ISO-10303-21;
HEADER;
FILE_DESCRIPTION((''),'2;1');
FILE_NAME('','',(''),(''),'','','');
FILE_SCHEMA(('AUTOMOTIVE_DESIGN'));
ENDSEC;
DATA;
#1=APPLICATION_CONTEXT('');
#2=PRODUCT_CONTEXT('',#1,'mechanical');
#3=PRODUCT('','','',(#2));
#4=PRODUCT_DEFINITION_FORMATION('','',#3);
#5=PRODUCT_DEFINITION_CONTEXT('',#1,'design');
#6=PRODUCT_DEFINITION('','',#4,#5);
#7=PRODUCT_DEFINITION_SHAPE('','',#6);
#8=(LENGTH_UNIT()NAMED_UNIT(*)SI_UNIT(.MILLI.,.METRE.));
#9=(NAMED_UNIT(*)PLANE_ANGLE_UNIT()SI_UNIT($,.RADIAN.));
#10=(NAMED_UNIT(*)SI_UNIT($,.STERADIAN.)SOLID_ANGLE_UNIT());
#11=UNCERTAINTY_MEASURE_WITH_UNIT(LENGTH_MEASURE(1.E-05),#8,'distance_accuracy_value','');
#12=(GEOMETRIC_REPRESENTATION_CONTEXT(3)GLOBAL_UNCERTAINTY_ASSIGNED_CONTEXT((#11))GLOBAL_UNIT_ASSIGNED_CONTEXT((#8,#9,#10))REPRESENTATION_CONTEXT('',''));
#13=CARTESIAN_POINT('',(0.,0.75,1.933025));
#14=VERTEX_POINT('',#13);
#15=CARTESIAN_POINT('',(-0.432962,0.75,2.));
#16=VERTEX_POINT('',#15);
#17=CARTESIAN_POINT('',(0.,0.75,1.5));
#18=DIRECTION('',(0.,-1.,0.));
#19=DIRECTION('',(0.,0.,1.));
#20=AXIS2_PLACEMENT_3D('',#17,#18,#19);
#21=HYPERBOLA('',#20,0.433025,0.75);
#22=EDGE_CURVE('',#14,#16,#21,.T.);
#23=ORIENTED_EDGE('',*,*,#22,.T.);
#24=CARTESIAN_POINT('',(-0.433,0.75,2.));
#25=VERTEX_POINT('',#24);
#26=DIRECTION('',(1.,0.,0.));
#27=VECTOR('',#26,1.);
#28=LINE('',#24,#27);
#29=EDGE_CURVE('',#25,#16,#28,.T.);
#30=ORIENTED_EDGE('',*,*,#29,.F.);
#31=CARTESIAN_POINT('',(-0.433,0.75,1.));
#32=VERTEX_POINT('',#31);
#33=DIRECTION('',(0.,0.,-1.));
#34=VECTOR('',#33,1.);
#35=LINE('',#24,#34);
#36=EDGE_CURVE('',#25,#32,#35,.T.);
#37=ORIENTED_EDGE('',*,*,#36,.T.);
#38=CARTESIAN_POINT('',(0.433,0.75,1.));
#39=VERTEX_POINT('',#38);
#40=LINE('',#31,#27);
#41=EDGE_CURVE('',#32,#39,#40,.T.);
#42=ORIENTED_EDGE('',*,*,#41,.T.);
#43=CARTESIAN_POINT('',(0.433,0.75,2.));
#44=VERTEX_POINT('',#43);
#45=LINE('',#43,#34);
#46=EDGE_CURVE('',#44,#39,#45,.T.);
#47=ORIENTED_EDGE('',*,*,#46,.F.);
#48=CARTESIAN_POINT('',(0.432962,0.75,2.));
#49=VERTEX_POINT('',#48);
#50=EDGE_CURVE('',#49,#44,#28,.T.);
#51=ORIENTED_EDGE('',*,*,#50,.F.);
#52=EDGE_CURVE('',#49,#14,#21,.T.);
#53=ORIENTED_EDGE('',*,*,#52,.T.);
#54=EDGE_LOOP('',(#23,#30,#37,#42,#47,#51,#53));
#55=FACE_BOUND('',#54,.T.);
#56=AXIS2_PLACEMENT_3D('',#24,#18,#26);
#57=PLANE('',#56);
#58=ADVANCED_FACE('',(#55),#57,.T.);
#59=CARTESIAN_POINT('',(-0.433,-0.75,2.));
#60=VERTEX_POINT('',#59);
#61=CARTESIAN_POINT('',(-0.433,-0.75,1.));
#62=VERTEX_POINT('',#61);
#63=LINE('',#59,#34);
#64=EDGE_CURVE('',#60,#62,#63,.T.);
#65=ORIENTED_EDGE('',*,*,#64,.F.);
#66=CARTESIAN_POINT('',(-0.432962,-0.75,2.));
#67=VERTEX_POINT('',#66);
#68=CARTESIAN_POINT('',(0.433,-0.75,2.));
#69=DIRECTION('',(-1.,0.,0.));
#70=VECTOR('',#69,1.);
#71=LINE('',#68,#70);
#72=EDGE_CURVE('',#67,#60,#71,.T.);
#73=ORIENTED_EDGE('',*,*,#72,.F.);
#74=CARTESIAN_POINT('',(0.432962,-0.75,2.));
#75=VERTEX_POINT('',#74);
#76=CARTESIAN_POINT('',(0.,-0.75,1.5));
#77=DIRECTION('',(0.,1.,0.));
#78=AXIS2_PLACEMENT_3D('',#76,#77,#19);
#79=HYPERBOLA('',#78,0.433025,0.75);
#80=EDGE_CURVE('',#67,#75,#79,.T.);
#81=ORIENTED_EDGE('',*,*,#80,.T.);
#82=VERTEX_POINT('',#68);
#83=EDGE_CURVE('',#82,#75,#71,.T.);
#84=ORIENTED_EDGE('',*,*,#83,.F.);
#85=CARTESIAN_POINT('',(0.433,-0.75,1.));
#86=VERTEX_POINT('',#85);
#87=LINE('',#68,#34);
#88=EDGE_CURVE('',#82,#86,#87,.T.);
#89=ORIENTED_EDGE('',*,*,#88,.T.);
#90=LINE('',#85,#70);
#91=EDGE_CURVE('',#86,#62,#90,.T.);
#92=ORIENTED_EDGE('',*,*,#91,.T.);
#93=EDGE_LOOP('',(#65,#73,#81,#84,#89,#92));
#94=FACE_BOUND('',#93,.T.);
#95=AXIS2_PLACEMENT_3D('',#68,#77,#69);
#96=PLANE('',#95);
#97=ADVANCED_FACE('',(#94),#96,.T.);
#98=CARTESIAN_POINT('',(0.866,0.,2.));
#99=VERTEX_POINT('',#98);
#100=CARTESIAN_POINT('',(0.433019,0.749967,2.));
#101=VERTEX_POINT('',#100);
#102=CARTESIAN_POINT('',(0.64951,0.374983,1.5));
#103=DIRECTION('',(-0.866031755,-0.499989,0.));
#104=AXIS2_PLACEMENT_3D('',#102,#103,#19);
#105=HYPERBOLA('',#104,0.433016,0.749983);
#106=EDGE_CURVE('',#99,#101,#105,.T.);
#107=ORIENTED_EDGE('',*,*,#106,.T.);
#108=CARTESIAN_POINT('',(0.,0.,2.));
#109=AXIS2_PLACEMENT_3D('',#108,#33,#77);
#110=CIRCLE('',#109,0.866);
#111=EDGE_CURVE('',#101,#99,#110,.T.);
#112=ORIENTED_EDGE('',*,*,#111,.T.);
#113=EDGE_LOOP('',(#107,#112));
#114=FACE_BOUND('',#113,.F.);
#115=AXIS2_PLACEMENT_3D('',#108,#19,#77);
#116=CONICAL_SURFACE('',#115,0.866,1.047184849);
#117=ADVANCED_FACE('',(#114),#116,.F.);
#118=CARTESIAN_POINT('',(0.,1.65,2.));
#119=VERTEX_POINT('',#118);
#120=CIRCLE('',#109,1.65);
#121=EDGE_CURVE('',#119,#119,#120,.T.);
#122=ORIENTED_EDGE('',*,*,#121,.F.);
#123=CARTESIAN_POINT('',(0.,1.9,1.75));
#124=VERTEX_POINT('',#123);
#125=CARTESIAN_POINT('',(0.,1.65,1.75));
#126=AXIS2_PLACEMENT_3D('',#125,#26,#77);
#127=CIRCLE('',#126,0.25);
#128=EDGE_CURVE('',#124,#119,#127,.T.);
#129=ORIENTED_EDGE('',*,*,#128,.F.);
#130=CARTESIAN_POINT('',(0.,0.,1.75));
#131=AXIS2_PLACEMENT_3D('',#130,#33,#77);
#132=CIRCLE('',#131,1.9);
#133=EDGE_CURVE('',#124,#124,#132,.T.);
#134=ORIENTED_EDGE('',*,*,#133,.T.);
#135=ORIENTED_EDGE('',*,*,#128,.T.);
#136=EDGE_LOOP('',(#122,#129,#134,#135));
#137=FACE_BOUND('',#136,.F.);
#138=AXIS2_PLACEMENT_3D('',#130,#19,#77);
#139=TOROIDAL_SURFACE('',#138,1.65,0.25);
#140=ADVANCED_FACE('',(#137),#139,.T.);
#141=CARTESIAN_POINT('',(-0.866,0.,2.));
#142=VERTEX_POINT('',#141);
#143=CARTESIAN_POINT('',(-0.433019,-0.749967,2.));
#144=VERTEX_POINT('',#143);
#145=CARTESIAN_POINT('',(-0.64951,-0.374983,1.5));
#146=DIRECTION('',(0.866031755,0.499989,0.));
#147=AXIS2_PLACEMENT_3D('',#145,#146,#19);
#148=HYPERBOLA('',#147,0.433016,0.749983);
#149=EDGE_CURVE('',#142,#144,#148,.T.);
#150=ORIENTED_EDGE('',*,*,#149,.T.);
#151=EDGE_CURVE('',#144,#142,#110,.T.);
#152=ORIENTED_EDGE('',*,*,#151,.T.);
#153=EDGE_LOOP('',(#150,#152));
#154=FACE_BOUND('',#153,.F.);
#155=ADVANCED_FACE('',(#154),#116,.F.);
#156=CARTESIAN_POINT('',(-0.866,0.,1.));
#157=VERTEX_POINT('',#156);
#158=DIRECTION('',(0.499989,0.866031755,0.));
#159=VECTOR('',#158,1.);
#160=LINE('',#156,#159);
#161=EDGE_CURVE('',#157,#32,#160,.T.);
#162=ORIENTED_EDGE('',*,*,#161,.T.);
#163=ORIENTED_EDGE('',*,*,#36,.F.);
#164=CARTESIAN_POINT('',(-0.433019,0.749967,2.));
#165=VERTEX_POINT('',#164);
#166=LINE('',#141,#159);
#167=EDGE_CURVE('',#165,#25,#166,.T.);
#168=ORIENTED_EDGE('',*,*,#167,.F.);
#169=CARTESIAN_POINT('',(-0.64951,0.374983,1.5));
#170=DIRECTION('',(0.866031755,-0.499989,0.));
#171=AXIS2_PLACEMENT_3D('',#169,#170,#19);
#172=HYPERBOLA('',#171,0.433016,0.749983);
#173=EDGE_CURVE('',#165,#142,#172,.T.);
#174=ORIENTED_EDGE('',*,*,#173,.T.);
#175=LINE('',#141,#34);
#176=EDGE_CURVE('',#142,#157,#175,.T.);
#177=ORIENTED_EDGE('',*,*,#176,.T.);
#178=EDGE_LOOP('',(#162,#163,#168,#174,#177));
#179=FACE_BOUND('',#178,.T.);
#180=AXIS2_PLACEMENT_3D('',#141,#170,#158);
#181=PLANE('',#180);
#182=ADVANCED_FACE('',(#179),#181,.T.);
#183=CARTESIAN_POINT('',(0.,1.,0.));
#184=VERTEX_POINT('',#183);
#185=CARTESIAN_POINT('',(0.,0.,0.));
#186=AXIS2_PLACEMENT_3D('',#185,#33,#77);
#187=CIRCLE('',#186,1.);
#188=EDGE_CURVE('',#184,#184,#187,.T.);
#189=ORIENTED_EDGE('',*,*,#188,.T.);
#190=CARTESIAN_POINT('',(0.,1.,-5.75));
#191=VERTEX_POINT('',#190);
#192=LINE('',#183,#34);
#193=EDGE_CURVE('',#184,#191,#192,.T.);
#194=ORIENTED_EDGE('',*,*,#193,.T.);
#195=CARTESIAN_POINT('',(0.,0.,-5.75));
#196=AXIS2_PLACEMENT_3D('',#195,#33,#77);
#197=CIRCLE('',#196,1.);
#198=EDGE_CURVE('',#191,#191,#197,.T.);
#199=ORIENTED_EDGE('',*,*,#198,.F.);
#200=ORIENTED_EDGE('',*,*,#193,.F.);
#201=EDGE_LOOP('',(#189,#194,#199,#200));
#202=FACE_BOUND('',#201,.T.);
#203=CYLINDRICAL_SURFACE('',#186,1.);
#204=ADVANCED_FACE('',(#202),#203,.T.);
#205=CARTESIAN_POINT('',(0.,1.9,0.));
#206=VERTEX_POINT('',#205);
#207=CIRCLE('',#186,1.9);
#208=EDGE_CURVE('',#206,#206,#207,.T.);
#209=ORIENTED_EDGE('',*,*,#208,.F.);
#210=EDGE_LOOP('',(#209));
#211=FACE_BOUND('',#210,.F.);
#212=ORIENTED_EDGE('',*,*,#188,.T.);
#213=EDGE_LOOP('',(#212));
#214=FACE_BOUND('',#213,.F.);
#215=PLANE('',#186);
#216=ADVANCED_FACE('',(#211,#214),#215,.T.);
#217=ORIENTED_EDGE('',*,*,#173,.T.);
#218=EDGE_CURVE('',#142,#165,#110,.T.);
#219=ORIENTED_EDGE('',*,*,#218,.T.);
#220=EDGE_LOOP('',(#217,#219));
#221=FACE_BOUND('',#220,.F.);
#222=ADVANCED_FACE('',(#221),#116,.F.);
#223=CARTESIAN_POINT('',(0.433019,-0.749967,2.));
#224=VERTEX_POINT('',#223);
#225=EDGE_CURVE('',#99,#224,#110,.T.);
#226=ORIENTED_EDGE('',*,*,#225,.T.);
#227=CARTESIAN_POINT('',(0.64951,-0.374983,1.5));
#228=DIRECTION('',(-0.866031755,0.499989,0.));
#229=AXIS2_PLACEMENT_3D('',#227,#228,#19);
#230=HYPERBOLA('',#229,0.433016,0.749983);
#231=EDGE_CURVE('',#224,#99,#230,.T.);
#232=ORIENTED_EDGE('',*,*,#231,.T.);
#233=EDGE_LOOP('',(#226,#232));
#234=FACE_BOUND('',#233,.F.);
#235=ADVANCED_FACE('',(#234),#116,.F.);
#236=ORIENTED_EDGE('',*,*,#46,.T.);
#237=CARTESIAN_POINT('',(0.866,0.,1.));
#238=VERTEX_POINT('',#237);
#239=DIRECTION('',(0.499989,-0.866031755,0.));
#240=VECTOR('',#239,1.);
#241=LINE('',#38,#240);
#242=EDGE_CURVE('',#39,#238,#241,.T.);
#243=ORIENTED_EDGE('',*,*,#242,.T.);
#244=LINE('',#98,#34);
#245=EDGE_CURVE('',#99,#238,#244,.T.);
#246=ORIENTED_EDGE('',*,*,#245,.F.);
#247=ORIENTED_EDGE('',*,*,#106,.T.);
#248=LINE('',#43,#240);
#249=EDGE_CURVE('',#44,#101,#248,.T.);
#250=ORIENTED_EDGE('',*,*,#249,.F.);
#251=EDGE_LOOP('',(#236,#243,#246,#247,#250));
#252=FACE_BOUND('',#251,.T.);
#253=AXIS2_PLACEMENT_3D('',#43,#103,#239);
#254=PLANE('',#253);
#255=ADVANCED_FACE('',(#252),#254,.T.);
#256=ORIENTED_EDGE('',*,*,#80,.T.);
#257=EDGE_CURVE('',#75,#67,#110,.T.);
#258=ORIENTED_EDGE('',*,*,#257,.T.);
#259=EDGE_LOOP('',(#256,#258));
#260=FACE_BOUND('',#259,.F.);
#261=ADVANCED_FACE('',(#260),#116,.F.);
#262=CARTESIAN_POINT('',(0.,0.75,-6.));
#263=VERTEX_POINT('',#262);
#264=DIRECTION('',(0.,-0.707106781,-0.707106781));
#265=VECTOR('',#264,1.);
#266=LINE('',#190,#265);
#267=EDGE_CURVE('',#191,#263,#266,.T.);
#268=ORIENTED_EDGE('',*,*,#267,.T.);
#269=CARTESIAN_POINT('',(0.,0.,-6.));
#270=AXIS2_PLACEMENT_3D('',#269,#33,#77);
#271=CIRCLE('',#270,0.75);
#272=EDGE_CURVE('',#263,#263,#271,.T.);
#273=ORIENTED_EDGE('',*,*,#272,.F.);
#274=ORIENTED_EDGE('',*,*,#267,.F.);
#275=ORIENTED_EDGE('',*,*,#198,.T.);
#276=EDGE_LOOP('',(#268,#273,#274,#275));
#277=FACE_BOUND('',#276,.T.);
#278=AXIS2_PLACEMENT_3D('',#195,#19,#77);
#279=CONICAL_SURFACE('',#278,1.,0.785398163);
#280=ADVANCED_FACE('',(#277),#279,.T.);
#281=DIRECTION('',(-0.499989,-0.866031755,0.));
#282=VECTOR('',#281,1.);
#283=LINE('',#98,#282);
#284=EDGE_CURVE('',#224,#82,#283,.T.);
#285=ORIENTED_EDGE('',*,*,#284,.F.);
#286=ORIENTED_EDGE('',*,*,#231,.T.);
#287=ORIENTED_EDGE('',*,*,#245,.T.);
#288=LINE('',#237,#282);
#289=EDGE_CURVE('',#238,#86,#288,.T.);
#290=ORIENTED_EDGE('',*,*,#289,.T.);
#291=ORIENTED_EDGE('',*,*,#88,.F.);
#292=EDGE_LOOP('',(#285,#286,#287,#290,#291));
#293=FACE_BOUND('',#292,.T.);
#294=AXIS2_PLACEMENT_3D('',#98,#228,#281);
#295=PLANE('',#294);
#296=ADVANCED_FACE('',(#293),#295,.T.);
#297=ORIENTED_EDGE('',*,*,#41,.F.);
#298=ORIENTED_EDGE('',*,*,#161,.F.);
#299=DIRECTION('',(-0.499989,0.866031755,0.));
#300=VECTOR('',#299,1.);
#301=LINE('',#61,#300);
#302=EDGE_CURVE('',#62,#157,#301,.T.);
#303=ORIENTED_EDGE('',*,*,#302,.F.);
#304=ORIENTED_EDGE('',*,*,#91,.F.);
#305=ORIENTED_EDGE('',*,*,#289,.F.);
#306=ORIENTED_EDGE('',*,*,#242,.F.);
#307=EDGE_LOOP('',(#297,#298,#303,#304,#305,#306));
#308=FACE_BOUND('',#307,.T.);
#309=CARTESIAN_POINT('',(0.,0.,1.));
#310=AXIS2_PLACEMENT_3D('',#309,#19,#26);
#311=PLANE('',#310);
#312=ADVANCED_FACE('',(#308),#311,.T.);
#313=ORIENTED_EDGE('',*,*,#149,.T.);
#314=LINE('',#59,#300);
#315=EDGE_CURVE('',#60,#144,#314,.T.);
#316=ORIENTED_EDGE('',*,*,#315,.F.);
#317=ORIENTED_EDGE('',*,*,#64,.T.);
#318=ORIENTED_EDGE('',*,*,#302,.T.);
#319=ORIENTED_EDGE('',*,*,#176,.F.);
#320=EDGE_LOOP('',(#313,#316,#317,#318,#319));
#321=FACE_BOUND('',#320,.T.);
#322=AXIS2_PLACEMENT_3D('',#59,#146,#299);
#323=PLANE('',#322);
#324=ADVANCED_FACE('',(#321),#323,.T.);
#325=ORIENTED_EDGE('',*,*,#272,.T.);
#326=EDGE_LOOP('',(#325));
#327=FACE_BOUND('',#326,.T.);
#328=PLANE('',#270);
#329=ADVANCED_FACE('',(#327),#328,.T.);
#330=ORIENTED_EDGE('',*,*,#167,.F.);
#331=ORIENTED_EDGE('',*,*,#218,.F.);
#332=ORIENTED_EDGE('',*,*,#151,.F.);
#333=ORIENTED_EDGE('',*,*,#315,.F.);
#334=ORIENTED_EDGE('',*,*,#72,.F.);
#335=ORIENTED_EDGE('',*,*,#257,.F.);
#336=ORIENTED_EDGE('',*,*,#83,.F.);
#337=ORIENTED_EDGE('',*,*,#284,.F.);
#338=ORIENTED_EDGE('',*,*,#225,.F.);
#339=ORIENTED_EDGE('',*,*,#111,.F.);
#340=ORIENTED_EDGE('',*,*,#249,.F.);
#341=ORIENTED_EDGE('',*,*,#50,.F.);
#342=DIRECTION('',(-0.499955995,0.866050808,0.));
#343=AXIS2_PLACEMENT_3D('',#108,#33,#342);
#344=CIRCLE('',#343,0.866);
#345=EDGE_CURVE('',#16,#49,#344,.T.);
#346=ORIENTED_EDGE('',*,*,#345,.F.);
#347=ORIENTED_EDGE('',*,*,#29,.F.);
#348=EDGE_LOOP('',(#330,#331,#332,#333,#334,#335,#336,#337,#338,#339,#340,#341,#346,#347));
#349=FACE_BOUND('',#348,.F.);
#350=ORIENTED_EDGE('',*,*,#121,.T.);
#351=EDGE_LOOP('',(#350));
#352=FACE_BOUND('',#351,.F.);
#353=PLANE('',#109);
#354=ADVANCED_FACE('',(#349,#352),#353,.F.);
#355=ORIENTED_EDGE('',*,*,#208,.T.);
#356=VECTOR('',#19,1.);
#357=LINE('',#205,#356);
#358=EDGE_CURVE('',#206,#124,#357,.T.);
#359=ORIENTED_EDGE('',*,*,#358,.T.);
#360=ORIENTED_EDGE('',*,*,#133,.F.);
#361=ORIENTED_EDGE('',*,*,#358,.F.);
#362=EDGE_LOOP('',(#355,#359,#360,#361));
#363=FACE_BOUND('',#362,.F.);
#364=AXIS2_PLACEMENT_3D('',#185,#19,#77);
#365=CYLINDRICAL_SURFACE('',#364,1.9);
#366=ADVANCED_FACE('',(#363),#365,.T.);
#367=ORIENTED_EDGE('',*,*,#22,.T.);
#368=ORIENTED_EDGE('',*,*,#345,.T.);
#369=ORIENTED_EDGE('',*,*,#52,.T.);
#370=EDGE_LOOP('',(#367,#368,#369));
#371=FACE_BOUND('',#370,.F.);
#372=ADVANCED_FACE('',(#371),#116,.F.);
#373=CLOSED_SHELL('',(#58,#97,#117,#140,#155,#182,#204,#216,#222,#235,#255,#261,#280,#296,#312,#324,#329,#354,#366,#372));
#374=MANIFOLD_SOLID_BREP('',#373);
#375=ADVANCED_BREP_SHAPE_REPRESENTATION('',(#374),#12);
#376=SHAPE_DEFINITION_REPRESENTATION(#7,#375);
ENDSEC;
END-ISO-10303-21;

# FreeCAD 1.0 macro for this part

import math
import FreeCAD as App
import Part
import Sketcher

V = App.Vector
Q = App.Units.Quantity


def edges_at(feature, points):
    """Names of the edges that pass closest to the given points."""
    edges = feature.Shape.Edges
    near = lambda p: min(range(len(edges)), key=lambda i: edges[i].distToShape(Part.Vertex(*p))[0])
    return sorted({f"Edge{near(p) + 1}" for p in points})

doc = App.newDocument("Part")
body = doc.addObject("PartDesign::Body", "Body")

sketch1 = doc.addObject("Sketcher::SketchObject", "Sketch")
body.addObject(sketch1)
sketch1.AttachmentSupport = (doc.YZ_Plane, [""])
sketch1.MapMode = "FlatFace"
sketch1.addGeometry([
    Part.LineSegment(V(1, 0, 0), V(1.9, 0, 0)),
    Part.LineSegment(V(1.9, 0, 0), V(1.9, 1.75, 0)),
    Part.ArcOfCircle(Part.Circle(V(1.65, 1.75, 0), V(0, 0, 1), 0.25), math.radians(0), math.radians(90)),
    Part.LineSegment(V(1.65, 2, 0), V(0.87, 2, 0)),
    Part.LineSegment(V(0.87, 2, 0), V(0, 1.5, 0)),
    Part.LineSegment(V(0, 1.5, 0), V(0, -6, 0)),
    Part.LineSegment(V(0, -6, 0), V(1, -6, 0)),
    Part.LineSegment(V(1, -6, 0), V(1, 0, 0)),
], False)
sketch1.addConstraint([
    Sketcher.Constraint("Coincident", 0, 2, 1, 1),
    Sketcher.Constraint("Tangent", 1, 2, 2, 1),
    Sketcher.Constraint("Tangent", 2, 2, 3, 1),
    Sketcher.Constraint("Coincident", 3, 2, 4, 1),
    Sketcher.Constraint("Coincident", 4, 2, 5, 1),
    Sketcher.Constraint("Coincident", 5, 2, 6, 1),
    Sketcher.Constraint("Coincident", 6, 2, 7, 1),
    Sketcher.Constraint("Coincident", 7, 2, 0, 1),
    Sketcher.Constraint("Horizontal", 0),
    Sketcher.Constraint("Vertical", 1),
    Sketcher.Constraint("Horizontal", 3),
    Sketcher.Constraint("Vertical", 5),
    Sketcher.Constraint("Horizontal", 6),
    Sketcher.Constraint("Vertical", 7),
    Sketcher.Constraint("PointOnObject", 0, 2, -1),
    Sketcher.Constraint("PointOnObject", 4, 2, -2),
    Sketcher.Constraint("DistanceY", 7, 1, 7, 2, Q("6 mm")),
    Sketcher.Constraint("Radius", 2, Q("0.25 mm")),
    Sketcher.Constraint("DistanceY", -1, 1, 2, 2, Q("2 mm")),
    Sketcher.Constraint("DistanceY", -1, 1, 4, 2, Q("1.5 mm")),
    Sketcher.Constraint("DistanceX", 6, 1, 6, 2, Q("1 mm")),
    Sketcher.Constraint("Angle", 4, Q("-149.9993 deg")),
    Sketcher.Constraint("DistanceX", 0, 1, 0, 2, Q("0.9 mm")),
])
revolution = doc.addObject("PartDesign::Revolution", "Revolution")
body.addObject(revolution)
revolution.Profile = sketch1
revolution.ReferenceAxis = (sketch1, ["V_Axis"])
revolution.Angle = 360

sketch2 = doc.addObject("Sketcher::SketchObject", "Sketch001")
body.addObject(sketch2)
sketch2.AttachmentSupport = (doc.XY_Plane, [""])
sketch2.MapMode = "FlatFace"
sketch2.AttachmentOffset = App.Placement(V(0, 0, 2), App.Rotation())
sketch2.addGeometry([
    Part.LineSegment(V(0.4, -0.8, 0), V(0.9, 0, 0)),
    Part.LineSegment(V(0.9, 0, 0), V(0.4, 0.8, 0)),
    Part.LineSegment(V(0.4, 0.8, 0), V(-0.4, 0.8, 0)),
    Part.LineSegment(V(-0.4, 0.8, 0), V(-0.9, 0, 0)),
    Part.LineSegment(V(-0.9, 0, 0), V(-0.4, -0.8, 0)),
    Part.LineSegment(V(-0.4, -0.8, 0), V(0.4, -0.8, 0)),
], False)
sketch2.addConstraint([
    Sketcher.Constraint("Coincident", 0, 2, 1, 1),
    Sketcher.Constraint("Coincident", 1, 2, 2, 1),
    Sketcher.Constraint("Coincident", 2, 2, 3, 1),
    Sketcher.Constraint("Coincident", 3, 2, 4, 1),
    Sketcher.Constraint("Coincident", 4, 2, 5, 1),
    Sketcher.Constraint("Coincident", 5, 2, 0, 1),
    Sketcher.Constraint("Horizontal", 2),
    Sketcher.Constraint("Horizontal", 5),
    Sketcher.Constraint("Symmetric", 0, 2, 3, 2, -1, 1),
    Sketcher.Constraint("Symmetric", 1, 2, 4, 2, -1, 1),
    Sketcher.Constraint("PointOnObject", 0, 2, -1),
    Sketcher.Constraint("Parallel", 0, 3),
    Sketcher.Constraint("Vertical", 2, 2, 4, 2),
    Sketcher.Constraint("DistanceY", 4, 2, 2, 2, Q("1.5 mm")),
    Sketcher.Constraint("Angle", 0, Q("60.0007 deg")),
    Sketcher.Constraint("DistanceX", 2, 2, 2, 1, Q("0.866 mm")),
])
pocket1 = doc.addObject("PartDesign::Pocket", "Pocket")
body.addObject(pocket1)
pocket1.Profile = sketch2
pocket1.Length = 1
doc.recompute()

chamfer = doc.addObject("PartDesign::Chamfer", "Chamfer")
body.addObject(chamfer)
chamfer.Base = (pocket1, edges_at(pocket1, [(0, -1, -6)]))
chamfer.Size = 0.25

doc.recompute()
